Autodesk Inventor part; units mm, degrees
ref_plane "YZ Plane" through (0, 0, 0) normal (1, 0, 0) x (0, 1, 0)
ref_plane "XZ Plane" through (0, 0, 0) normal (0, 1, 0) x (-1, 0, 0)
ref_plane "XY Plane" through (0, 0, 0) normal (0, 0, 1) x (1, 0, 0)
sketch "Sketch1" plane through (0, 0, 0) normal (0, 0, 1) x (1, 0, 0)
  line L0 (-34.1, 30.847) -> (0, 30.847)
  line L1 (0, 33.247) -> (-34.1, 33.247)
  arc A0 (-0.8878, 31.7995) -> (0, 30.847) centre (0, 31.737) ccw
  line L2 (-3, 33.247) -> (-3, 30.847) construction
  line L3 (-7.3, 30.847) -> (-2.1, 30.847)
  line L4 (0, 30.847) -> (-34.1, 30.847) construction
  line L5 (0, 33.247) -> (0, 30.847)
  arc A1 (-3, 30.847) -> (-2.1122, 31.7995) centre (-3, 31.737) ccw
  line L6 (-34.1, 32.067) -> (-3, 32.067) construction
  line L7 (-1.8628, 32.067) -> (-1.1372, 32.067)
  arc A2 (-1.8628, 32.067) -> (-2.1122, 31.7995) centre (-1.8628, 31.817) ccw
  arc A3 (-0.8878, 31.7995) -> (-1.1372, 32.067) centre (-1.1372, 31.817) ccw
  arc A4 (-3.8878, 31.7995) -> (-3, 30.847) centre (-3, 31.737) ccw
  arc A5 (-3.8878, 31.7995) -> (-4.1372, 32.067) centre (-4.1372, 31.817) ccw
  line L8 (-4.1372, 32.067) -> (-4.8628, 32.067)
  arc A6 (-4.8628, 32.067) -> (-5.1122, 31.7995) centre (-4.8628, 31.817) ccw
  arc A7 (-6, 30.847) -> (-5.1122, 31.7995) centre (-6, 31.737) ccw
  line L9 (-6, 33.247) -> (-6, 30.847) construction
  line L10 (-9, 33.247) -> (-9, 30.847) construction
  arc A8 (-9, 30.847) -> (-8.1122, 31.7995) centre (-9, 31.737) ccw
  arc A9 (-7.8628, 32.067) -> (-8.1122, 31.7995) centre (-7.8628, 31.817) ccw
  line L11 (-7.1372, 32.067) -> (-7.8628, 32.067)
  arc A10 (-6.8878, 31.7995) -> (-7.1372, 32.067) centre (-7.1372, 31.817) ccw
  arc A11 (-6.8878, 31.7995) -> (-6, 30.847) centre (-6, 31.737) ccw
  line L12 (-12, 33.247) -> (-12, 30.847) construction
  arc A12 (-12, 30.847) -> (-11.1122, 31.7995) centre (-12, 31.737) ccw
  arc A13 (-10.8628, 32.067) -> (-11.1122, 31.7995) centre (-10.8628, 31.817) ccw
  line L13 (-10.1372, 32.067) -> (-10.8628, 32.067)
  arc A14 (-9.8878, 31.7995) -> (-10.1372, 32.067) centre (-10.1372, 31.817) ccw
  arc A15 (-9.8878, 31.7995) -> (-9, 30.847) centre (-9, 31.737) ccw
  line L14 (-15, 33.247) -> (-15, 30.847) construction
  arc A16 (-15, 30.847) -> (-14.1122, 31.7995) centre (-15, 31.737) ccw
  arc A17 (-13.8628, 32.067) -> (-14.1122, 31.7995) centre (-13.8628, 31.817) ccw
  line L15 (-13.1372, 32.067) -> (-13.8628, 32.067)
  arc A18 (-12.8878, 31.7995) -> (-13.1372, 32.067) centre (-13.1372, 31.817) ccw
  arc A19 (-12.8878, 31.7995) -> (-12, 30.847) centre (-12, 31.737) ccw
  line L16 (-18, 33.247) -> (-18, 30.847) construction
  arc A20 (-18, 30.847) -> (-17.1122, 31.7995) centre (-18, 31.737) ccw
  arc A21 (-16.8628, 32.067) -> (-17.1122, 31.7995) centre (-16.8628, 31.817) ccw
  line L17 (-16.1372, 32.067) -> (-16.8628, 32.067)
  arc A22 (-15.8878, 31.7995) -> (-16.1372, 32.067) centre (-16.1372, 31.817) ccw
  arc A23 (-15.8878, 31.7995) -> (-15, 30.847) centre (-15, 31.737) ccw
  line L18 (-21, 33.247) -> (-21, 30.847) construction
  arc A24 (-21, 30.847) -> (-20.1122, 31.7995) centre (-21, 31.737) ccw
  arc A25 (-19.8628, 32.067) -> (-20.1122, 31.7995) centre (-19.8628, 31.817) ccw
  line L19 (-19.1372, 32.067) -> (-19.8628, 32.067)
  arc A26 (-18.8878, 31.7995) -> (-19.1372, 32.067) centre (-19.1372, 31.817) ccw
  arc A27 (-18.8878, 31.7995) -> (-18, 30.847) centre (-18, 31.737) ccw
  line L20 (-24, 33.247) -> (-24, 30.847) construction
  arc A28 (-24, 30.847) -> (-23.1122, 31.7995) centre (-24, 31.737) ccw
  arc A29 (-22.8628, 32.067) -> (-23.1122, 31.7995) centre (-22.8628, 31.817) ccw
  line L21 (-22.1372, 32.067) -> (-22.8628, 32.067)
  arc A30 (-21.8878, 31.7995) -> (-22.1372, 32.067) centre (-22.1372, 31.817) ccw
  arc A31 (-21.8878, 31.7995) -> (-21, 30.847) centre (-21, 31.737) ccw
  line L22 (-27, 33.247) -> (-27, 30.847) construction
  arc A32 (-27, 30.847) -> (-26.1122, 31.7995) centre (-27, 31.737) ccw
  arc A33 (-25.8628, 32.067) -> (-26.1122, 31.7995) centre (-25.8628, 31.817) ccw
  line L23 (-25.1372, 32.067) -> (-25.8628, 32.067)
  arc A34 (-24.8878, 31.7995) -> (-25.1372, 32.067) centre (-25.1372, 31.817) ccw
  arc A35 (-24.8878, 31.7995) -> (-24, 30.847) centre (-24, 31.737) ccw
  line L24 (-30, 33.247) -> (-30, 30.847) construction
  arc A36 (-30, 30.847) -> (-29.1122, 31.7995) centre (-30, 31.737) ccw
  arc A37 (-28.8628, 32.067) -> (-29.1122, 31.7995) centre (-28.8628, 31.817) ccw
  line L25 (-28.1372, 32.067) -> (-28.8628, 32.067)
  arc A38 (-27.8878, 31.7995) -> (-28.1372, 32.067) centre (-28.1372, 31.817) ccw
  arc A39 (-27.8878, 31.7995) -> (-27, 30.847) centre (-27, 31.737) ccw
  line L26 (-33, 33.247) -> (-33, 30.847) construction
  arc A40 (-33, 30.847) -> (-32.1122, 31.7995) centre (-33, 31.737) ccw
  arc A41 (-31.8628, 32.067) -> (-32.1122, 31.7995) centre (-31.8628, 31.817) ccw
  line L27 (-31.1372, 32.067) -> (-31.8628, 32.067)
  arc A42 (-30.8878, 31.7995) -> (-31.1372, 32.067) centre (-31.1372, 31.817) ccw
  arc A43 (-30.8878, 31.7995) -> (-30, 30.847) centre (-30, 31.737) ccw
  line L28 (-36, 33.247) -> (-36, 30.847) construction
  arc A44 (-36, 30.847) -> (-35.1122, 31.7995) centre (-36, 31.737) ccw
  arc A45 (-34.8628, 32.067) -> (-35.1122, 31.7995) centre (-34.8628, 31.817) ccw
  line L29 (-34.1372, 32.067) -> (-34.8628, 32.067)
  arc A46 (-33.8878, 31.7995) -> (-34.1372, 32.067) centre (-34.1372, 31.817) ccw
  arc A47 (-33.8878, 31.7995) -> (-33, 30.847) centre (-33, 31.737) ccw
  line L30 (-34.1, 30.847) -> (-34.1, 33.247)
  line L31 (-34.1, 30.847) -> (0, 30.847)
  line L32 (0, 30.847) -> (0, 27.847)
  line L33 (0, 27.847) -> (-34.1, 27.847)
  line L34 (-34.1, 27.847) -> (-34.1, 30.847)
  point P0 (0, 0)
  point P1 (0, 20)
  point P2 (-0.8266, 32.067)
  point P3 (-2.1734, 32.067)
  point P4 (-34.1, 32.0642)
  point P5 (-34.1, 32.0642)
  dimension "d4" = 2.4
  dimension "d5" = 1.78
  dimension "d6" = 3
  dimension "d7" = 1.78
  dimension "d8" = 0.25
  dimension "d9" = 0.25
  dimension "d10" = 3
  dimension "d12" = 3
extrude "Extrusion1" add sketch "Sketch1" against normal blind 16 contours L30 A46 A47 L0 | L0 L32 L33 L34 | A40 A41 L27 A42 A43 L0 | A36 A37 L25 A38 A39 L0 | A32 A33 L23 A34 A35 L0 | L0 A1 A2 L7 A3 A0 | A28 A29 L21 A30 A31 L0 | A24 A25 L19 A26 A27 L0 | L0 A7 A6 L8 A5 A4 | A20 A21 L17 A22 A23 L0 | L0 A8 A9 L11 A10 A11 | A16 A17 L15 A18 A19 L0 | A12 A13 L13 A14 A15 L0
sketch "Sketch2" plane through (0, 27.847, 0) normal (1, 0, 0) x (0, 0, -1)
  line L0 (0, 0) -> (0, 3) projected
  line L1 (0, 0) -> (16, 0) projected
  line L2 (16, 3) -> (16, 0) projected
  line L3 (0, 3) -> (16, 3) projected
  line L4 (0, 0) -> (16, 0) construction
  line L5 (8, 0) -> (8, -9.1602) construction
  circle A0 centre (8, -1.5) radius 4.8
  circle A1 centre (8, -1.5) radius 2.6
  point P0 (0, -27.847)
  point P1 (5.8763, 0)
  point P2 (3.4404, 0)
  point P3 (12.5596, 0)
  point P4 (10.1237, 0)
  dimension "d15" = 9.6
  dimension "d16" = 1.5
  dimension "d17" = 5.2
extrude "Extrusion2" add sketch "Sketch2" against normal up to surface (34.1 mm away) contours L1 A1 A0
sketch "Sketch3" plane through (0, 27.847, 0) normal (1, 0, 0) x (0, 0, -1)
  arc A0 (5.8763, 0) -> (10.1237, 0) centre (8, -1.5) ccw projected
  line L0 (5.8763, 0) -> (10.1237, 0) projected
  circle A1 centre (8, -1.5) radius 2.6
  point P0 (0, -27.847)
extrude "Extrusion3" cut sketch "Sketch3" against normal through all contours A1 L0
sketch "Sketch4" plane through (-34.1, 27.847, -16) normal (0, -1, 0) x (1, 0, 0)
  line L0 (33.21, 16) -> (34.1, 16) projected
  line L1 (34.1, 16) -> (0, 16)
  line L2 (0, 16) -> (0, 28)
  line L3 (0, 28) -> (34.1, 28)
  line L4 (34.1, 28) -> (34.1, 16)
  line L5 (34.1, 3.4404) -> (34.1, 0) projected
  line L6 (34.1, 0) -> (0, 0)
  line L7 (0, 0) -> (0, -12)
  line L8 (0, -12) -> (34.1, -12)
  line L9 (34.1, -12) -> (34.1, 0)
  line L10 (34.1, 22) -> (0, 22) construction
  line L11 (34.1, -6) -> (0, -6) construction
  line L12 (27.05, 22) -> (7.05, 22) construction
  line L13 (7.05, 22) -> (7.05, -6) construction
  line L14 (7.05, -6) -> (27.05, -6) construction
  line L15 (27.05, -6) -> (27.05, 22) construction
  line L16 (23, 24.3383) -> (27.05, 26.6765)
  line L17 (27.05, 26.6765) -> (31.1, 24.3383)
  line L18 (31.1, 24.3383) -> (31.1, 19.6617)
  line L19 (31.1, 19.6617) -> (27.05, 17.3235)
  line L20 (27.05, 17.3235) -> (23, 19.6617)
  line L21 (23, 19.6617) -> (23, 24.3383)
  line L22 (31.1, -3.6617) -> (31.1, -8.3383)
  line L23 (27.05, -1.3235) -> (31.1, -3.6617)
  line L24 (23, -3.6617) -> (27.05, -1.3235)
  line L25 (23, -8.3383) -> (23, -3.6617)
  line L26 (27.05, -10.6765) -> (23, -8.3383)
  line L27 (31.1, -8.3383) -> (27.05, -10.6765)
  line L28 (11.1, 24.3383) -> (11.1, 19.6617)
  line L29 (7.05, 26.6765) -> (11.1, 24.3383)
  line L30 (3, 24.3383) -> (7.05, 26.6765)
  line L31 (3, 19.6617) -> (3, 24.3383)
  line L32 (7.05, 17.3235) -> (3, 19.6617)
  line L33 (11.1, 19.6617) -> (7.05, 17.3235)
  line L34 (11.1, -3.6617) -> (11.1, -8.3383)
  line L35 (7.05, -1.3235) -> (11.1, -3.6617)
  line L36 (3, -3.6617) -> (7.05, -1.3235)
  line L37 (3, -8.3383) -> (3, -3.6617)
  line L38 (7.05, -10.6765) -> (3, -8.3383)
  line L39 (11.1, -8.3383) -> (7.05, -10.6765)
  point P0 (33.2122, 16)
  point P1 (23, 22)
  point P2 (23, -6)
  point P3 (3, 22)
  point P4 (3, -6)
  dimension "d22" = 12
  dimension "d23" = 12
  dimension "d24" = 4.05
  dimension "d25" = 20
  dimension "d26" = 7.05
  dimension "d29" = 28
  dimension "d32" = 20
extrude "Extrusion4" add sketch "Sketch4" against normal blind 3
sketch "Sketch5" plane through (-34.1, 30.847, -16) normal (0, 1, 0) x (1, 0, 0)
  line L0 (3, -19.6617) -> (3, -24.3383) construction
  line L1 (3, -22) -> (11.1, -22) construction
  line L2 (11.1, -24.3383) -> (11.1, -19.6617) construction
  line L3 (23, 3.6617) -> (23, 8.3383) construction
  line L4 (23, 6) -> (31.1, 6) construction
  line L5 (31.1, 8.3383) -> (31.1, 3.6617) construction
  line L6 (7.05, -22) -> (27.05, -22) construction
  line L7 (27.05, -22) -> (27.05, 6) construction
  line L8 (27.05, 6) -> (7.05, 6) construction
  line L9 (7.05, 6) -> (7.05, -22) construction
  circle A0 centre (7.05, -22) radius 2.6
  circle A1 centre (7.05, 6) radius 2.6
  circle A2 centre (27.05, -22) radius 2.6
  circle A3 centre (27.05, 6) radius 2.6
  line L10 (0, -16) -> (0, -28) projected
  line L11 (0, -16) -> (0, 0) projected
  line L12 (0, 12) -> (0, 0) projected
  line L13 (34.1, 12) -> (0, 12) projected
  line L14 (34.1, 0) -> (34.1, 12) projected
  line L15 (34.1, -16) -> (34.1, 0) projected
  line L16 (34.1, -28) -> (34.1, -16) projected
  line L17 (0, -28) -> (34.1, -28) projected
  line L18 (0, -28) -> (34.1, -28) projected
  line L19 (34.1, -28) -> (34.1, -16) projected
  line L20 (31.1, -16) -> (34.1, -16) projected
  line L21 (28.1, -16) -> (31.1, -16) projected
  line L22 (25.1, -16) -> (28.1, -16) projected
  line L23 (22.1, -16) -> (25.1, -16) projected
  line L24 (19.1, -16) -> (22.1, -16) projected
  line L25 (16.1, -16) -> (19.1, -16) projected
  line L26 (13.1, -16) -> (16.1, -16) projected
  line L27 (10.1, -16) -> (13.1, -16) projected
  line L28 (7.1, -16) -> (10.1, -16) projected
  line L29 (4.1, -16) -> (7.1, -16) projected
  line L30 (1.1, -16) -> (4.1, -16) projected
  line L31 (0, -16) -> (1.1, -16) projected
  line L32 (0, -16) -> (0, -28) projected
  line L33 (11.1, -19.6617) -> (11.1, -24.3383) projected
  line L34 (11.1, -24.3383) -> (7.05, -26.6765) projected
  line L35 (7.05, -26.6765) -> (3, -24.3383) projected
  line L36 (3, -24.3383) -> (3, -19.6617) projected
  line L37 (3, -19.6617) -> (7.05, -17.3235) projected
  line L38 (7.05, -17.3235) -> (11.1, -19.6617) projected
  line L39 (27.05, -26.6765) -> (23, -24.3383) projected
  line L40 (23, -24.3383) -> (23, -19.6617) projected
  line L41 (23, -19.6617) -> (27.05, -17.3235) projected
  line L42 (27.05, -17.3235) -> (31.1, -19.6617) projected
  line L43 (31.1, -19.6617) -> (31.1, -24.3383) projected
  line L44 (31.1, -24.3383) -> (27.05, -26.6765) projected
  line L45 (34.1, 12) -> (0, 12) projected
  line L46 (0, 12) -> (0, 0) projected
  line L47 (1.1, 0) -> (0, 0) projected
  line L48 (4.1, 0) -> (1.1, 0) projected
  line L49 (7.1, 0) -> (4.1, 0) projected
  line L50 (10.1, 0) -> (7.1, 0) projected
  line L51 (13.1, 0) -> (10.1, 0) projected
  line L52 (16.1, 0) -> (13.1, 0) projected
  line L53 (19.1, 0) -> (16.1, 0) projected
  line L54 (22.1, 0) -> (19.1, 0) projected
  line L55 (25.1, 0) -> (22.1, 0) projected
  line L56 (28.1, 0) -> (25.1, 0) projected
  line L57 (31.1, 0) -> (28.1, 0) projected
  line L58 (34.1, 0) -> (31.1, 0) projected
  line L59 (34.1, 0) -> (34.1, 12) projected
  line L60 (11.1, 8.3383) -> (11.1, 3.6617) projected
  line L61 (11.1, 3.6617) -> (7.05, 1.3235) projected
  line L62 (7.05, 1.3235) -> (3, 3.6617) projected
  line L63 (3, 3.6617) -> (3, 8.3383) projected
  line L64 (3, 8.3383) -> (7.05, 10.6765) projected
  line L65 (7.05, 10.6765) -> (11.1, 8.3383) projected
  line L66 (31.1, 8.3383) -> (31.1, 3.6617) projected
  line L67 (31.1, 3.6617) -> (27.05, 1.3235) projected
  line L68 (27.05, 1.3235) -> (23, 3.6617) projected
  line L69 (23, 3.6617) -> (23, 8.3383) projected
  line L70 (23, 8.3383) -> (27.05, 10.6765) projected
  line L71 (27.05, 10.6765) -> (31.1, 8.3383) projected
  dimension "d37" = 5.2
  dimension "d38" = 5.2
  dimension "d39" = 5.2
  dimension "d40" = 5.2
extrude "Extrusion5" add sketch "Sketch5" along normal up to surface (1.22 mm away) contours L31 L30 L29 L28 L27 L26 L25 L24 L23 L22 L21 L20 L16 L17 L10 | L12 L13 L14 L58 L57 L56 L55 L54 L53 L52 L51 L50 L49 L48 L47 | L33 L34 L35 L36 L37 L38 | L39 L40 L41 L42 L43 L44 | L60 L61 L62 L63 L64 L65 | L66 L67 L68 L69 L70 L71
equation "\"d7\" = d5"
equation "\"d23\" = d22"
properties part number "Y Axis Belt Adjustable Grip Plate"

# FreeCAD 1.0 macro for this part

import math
import FreeCAD as App
import Part
import Sketcher

V = App.Vector
Q = App.Units.Quantity


def add_polygon(sketch, points):
    """Adds a closed chain of lines whose ends are joined by coincident constraints."""
    first, n = sketch.GeometryCount, len(points)
    for a, b in zip(points, points[1:] + points[:1]):
        sketch.addGeometry(Part.LineSegment(App.Vector(*a, 0), App.Vector(*b, 0)), False)
    for i in range(n):
        sketch.addConstraint(Sketcher.Constraint("Coincident", first + i, 2, first + (i + 1) % n, 1))

doc = App.newDocument("Part")
body = doc.addObject("PartDesign::Body", "Body")

# Sketch on XY plane
sketch1 = body.newObject("Sketcher::SketchObject", "Sketch")
sketch1.AttachmentSupport = (doc.getObject("XY_Plane"), [""])
sketch1.MapMode = "FlatFace"
sketch1.addGeometry([
    Part.LineSegment(V(-34.1, 32.06, 0), V(-34.1, 27.85, 0)),  # 0
    Part.LineSegment(V(-34.1, 27.85, 0), V(0, 27.85, 0)),  # 1
    Part.LineSegment(V(0, 27.85, 0), V(0, 30.85, 0)),  # 2
    Part.ArcOfCircle(Part.Circle(V(0, 31.74, 0), V(0, 0, 1), 0.89), math.radians(176), math.radians(270)),  # 3
    Part.ArcOfCircle(Part.Circle(V(-1.14, 31.82, 0), V(0, 0, 1), 0.25), math.radians(-4), math.radians(90)),  # 4
    Part.LineSegment(V(-1.14, 32.07, 0), V(-1.86, 32.07, 0)),  # 5
    Part.ArcOfCircle(Part.Circle(V(-1.86, 31.82, 0), V(0, 0, 1), 0.25), math.radians(90), math.radians(184)),  # 6
    Part.ArcOfCircle(Part.Circle(V(-3, 31.74, 0), V(0, 0, 1), 0.89), math.radians(-90), math.radians(4)),  # 7
    Part.ArcOfCircle(Part.Circle(V(-3, 31.74, 0), V(0, 0, 1), 0.89), math.radians(176), math.radians(270)),  # 8
    Part.ArcOfCircle(Part.Circle(V(-4.14, 31.82, 0), V(0, 0, 1), 0.25), math.radians(-4), math.radians(90)),  # 9
    Part.LineSegment(V(-4.14, 32.07, 0), V(-4.86, 32.07, 0)),  # 10
    Part.ArcOfCircle(Part.Circle(V(-4.86, 31.82, 0), V(0, 0, 1), 0.25), math.radians(90), math.radians(184)),  # 11
    Part.ArcOfCircle(Part.Circle(V(-6, 31.74, 0), V(0, 0, 1), 0.89), math.radians(-90), math.radians(4)),  # 12
    Part.ArcOfCircle(Part.Circle(V(-6, 31.74, 0), V(0, 0, 1), 0.89), math.radians(176), math.radians(270)),  # 13
    Part.ArcOfCircle(Part.Circle(V(-7.14, 31.82, 0), V(0, 0, 1), 0.25), math.radians(-4), math.radians(90)),  # 14
    Part.LineSegment(V(-7.14, 32.07, 0), V(-7.86, 32.07, 0)),  # 15
    Part.ArcOfCircle(Part.Circle(V(-7.86, 31.82, 0), V(0, 0, 1), 0.25), math.radians(90), math.radians(184)),  # 16
    Part.ArcOfCircle(Part.Circle(V(-9, 31.74, 0), V(0, 0, 1), 0.89), math.radians(-90), math.radians(4)),  # 17
    Part.ArcOfCircle(Part.Circle(V(-9, 31.74, 0), V(0, 0, 1), 0.89), math.radians(176), math.radians(270)),  # 18
    Part.ArcOfCircle(Part.Circle(V(-10.14, 31.82, 0), V(0, 0, 1), 0.25), math.radians(-4), math.radians(90)),  # 19
    Part.LineSegment(V(-10.14, 32.07, 0), V(-10.86, 32.07, 0)),  # 20
    Part.ArcOfCircle(Part.Circle(V(-10.86, 31.82, 0), V(0, 0, 1), 0.25), math.radians(90), math.radians(184)),  # 21
    Part.ArcOfCircle(Part.Circle(V(-12, 31.74, 0), V(0, 0, 1), 0.89), math.radians(-90), math.radians(4)),  # 22
    Part.ArcOfCircle(Part.Circle(V(-12, 31.74, 0), V(0, 0, 1), 0.89), math.radians(176), math.radians(270)),  # 23
    Part.ArcOfCircle(Part.Circle(V(-13.14, 31.82, 0), V(0, 0, 1), 0.25), math.radians(-4), math.radians(90)),  # 24
    Part.LineSegment(V(-13.14, 32.07, 0), V(-13.86, 32.07, 0)),  # 25
    Part.ArcOfCircle(Part.Circle(V(-13.86, 31.82, 0), V(0, 0, 1), 0.25), math.radians(90), math.radians(184)),  # 26
    Part.ArcOfCircle(Part.Circle(V(-15, 31.74, 0), V(0, 0, 1), 0.89), math.radians(-90), math.radians(4)),  # 27
    Part.ArcOfCircle(Part.Circle(V(-15, 31.74, 0), V(0, 0, 1), 0.89), math.radians(176), math.radians(270)),  # 28
    Part.ArcOfCircle(Part.Circle(V(-16.14, 31.82, 0), V(0, 0, 1), 0.25), math.radians(-4), math.radians(90)),  # 29
    Part.LineSegment(V(-16.14, 32.07, 0), V(-16.86, 32.07, 0)),  # 30
    Part.ArcOfCircle(Part.Circle(V(-16.86, 31.82, 0), V(0, 0, 1), 0.25), math.radians(90), math.radians(184)),  # 31
    Part.ArcOfCircle(Part.Circle(V(-18, 31.74, 0), V(0, 0, 1), 0.89), math.radians(-90), math.radians(4)),  # 32
    Part.ArcOfCircle(Part.Circle(V(-18, 31.74, 0), V(0, 0, 1), 0.89), math.radians(176), math.radians(270)),  # 33
    Part.ArcOfCircle(Part.Circle(V(-19.14, 31.82, 0), V(0, 0, 1), 0.25), math.radians(-4), math.radians(90)),  # 34
    Part.LineSegment(V(-19.14, 32.07, 0), V(-19.86, 32.07, 0)),  # 35
    Part.ArcOfCircle(Part.Circle(V(-19.86, 31.82, 0), V(0, 0, 1), 0.25), math.radians(90), math.radians(184)),  # 36
    Part.ArcOfCircle(Part.Circle(V(-21, 31.74, 0), V(0, 0, 1), 0.89), math.radians(-90), math.radians(4)),  # 37
    Part.ArcOfCircle(Part.Circle(V(-21, 31.74, 0), V(0, 0, 1), 0.89), math.radians(176), math.radians(270)),  # 38
    Part.ArcOfCircle(Part.Circle(V(-22.14, 31.82, 0), V(0, 0, 1), 0.25), math.radians(-4), math.radians(90)),  # 39
    Part.LineSegment(V(-22.14, 32.07, 0), V(-22.86, 32.07, 0)),  # 40
    Part.ArcOfCircle(Part.Circle(V(-22.86, 31.82, 0), V(0, 0, 1), 0.25), math.radians(90), math.radians(184)),  # 41
    Part.ArcOfCircle(Part.Circle(V(-24, 31.74, 0), V(0, 0, 1), 0.89), math.radians(-90), math.radians(4)),  # 42
    Part.ArcOfCircle(Part.Circle(V(-24, 31.74, 0), V(0, 0, 1), 0.89), math.radians(176), math.radians(270)),  # 43
    Part.ArcOfCircle(Part.Circle(V(-25.14, 31.82, 0), V(0, 0, 1), 0.25), math.radians(-4), math.radians(90)),  # 44
    Part.LineSegment(V(-25.14, 32.07, 0), V(-25.86, 32.07, 0)),  # 45
    Part.ArcOfCircle(Part.Circle(V(-25.86, 31.82, 0), V(0, 0, 1), 0.25), math.radians(90), math.radians(184)),  # 46
    Part.ArcOfCircle(Part.Circle(V(-27, 31.74, 0), V(0, 0, 1), 0.89), math.radians(-90), math.radians(4)),  # 47
    Part.ArcOfCircle(Part.Circle(V(-27, 31.74, 0), V(0, 0, 1), 0.89), math.radians(176), math.radians(270)),  # 48
    Part.ArcOfCircle(Part.Circle(V(-28.14, 31.82, 0), V(0, 0, 1), 0.25), math.radians(-4), math.radians(90)),  # 49
    Part.LineSegment(V(-28.14, 32.07, 0), V(-28.86, 32.07, 0)),  # 50
    Part.ArcOfCircle(Part.Circle(V(-28.86, 31.82, 0), V(0, 0, 1), 0.25), math.radians(90), math.radians(184)),  # 51
    Part.ArcOfCircle(Part.Circle(V(-30, 31.74, 0), V(0, 0, 1), 0.89), math.radians(-90), math.radians(4)),  # 52
    Part.ArcOfCircle(Part.Circle(V(-30, 31.74, 0), V(0, 0, 1), 0.89), math.radians(176), math.radians(270)),  # 53
    Part.ArcOfCircle(Part.Circle(V(-31.14, 31.82, 0), V(0, 0, 1), 0.25), math.radians(-4), math.radians(90)),  # 54
    Part.LineSegment(V(-31.14, 32.07, 0), V(-31.86, 32.07, 0)),  # 55
    Part.ArcOfCircle(Part.Circle(V(-31.86, 31.82, 0), V(0, 0, 1), 0.25), math.radians(90), math.radians(184)),  # 56
    Part.ArcOfCircle(Part.Circle(V(-33, 31.74, 0), V(0, 0, 1), 0.89), math.radians(-90), math.radians(4)),  # 57
    Part.ArcOfCircle(Part.Circle(V(-33, 31.74, 0), V(0, 0, 1), 0.89), math.radians(176), math.radians(270)),  # 58
    Part.ArcOfCircle(Part.Circle(V(-34.14, 31.82, 0), V(0, 0, 1), 0.25), math.radians(-4), math.radians(81)),  # 59
], False)
sketch1.addConstraint([
    Sketcher.Constraint("Coincident", 0, 2, 1, 1),
    Sketcher.Constraint("Coincident", 1, 2, 2, 1),
    Sketcher.Constraint("Coincident", 2, 2, 3, 2),
    Sketcher.Constraint("Tangent", 3, 1, 4, 1),
    Sketcher.Constraint("Tangent", 4, 2, 5, 1),
    Sketcher.Constraint("Tangent", 5, 2, 6, 1),
    Sketcher.Constraint("Tangent", 6, 2, 7, 2),
    Sketcher.Constraint("Tangent", 7, 1, 8, 2),
    Sketcher.Constraint("Tangent", 8, 1, 9, 1),
    Sketcher.Constraint("Tangent", 9, 2, 10, 1),
    Sketcher.Constraint("Tangent", 10, 2, 11, 1),
    Sketcher.Constraint("Tangent", 11, 2, 12, 2),
    Sketcher.Constraint("Tangent", 12, 1, 13, 2),
    Sketcher.Constraint("Tangent", 13, 1, 14, 1),
    Sketcher.Constraint("Tangent", 14, 2, 15, 1),
    Sketcher.Constraint("Tangent", 15, 2, 16, 1),
    Sketcher.Constraint("Tangent", 16, 2, 17, 2),
    Sketcher.Constraint("Tangent", 17, 1, 18, 2),
    Sketcher.Constraint("Tangent", 18, 1, 19, 1),
    Sketcher.Constraint("Tangent", 19, 2, 20, 1),
    Sketcher.Constraint("Tangent", 20, 2, 21, 1),
    Sketcher.Constraint("Tangent", 21, 2, 22, 2),
    Sketcher.Constraint("Tangent", 22, 1, 23, 2),
    Sketcher.Constraint("Tangent", 23, 1, 24, 1),
    Sketcher.Constraint("Tangent", 24, 2, 25, 1),
    Sketcher.Constraint("Tangent", 25, 2, 26, 1),
    Sketcher.Constraint("Tangent", 26, 2, 27, 2),
    Sketcher.Constraint("Tangent", 27, 1, 28, 2),
    Sketcher.Constraint("Tangent", 28, 1, 29, 1),
    Sketcher.Constraint("Tangent", 29, 2, 30, 1),
    Sketcher.Constraint("Tangent", 30, 2, 31, 1),
    Sketcher.Constraint("Tangent", 31, 2, 32, 2),
    Sketcher.Constraint("Tangent", 32, 1, 33, 2),
    Sketcher.Constraint("Tangent", 33, 1, 34, 1),
    Sketcher.Constraint("Tangent", 34, 2, 35, 1),
    Sketcher.Constraint("Tangent", 35, 2, 36, 1),
    Sketcher.Constraint("Tangent", 36, 2, 37, 2),
    Sketcher.Constraint("Tangent", 37, 1, 38, 2),
    Sketcher.Constraint("Tangent", 38, 1, 39, 1),
    Sketcher.Constraint("Tangent", 39, 2, 40, 1),
    Sketcher.Constraint("Tangent", 40, 2, 41, 1),
    Sketcher.Constraint("Tangent", 41, 2, 42, 2),
    Sketcher.Constraint("Tangent", 42, 1, 43, 2),
    Sketcher.Constraint("Tangent", 43, 1, 44, 1),
    Sketcher.Constraint("Tangent", 44, 2, 45, 1),
    Sketcher.Constraint("Tangent", 45, 2, 46, 1),
    Sketcher.Constraint("Tangent", 46, 2, 47, 2),
    Sketcher.Constraint("Tangent", 47, 1, 48, 2),
    Sketcher.Constraint("Tangent", 48, 1, 49, 1),
    Sketcher.Constraint("Tangent", 49, 2, 50, 1),
    Sketcher.Constraint("Tangent", 50, 2, 51, 1),
    Sketcher.Constraint("Tangent", 51, 2, 52, 2),
    Sketcher.Constraint("Tangent", 52, 1, 53, 2),
    Sketcher.Constraint("Tangent", 53, 1, 54, 1),
    Sketcher.Constraint("Tangent", 54, 2, 55, 1),
    Sketcher.Constraint("Tangent", 55, 2, 56, 1),
    Sketcher.Constraint("Tangent", 56, 2, 57, 2),
    Sketcher.Constraint("Tangent", 57, 1, 58, 2),
    Sketcher.Constraint("Tangent", 58, 1, 59, 1),
    Sketcher.Constraint("Coincident", 59, 2, 0, 1),
    Sketcher.Constraint("Vertical", 0),
    Sketcher.Constraint("Horizontal", 1),
    Sketcher.Constraint("Vertical", 2),
    Sketcher.Constraint("Horizontal", 5),
    Sketcher.Constraint("Horizontal", 10),
    Sketcher.Constraint("Horizontal", 15),
    Sketcher.Constraint("Horizontal", 20),
    Sketcher.Constraint("Horizontal", 25),
    Sketcher.Constraint("Horizontal", 30),
    Sketcher.Constraint("Horizontal", 35),
    Sketcher.Constraint("Horizontal", 40),
    Sketcher.Constraint("Horizontal", 45),
    Sketcher.Constraint("Horizontal", 50),
    Sketcher.Constraint("Horizontal", 55),
    Sketcher.Constraint("Equal", 4, 6),
    Sketcher.Constraint("Equal", 3, 7),
    Sketcher.Constraint("Equal", 7, 8),
    Sketcher.Constraint("Equal", 6, 9),
    Sketcher.Constraint("Equal", 9, 11),
    Sketcher.Constraint("Equal", 8, 12),
    Sketcher.Constraint("Equal", 12, 13),
    Sketcher.Constraint("Equal", 11, 14),
    Sketcher.Constraint("Equal", 14, 16),
    Sketcher.Constraint("Equal", 13, 17),
    Sketcher.Constraint("Equal", 17, 18),
    Sketcher.Constraint("Equal", 16, 19),
    Sketcher.Constraint("Equal", 19, 21),
    Sketcher.Constraint("Equal", 18, 22),
    Sketcher.Constraint("Equal", 22, 23),
    Sketcher.Constraint("Equal", 21, 24),
    Sketcher.Constraint("Equal", 24, 26),
    Sketcher.Constraint("Equal", 23, 27),
    Sketcher.Constraint("Equal", 27, 28),
    Sketcher.Constraint("Equal", 26, 29),
    Sketcher.Constraint("Equal", 29, 31),
    Sketcher.Constraint("Equal", 28, 32),
    Sketcher.Constraint("Equal", 32, 33),
    Sketcher.Constraint("Equal", 31, 34),
    Sketcher.Constraint("Equal", 34, 36),
    Sketcher.Constraint("Equal", 33, 37),
    Sketcher.Constraint("Equal", 37, 38),
    Sketcher.Constraint("Equal", 36, 39),
    Sketcher.Constraint("Equal", 39, 41),
    Sketcher.Constraint("Equal", 38, 42),
    Sketcher.Constraint("Equal", 42, 43),
    Sketcher.Constraint("Equal", 41, 44),
    Sketcher.Constraint("Equal", 44, 46),
    Sketcher.Constraint("Equal", 43, 47),
    Sketcher.Constraint("Equal", 47, 48),
    Sketcher.Constraint("Equal", 46, 49),
    Sketcher.Constraint("Equal", 49, 51),
    Sketcher.Constraint("Equal", 48, 52),
    Sketcher.Constraint("Equal", 52, 53),
    Sketcher.Constraint("Equal", 51, 54),
    Sketcher.Constraint("Equal", 54, 56),
    Sketcher.Constraint("Equal", 53, 57),
    Sketcher.Constraint("Equal", 57, 58),
    Sketcher.Constraint("Equal", 56, 59),
    Sketcher.Constraint("PointOnObject", 3, 3, -2),
    Sketcher.Constraint("PointOnObject", 1, 2, -2),
    Sketcher.Constraint("Horizontal", 3, 3, 7, 3),
    Sketcher.Constraint("Horizontal", 6, 3, 9, 3),
    Sketcher.Constraint("Horizontal", 8, 3, 12, 3),
    Sketcher.Constraint("Horizontal", 11, 3, 14, 3),
    Sketcher.Constraint("Horizontal", 13, 3, 17, 3),
    Sketcher.Constraint("Horizontal", 16, 3, 19, 3),
    Sketcher.Constraint("Horizontal", 18, 3, 22, 3),
    Sketcher.Constraint("Horizontal", 21, 3, 24, 3),
    Sketcher.Constraint("Horizontal", 23, 3, 27, 3),
    Sketcher.Constraint("Horizontal", 26, 3, 29, 3),
    Sketcher.Constraint("Horizontal", 28, 3, 32, 3),
    Sketcher.Constraint("Horizontal", 31, 3, 34, 3),
    Sketcher.Constraint("Horizontal", 33, 3, 37, 3),
    Sketcher.Constraint("Horizontal", 36, 3, 39, 3),
    Sketcher.Constraint("Horizontal", 38, 3, 42, 3),
    Sketcher.Constraint("Horizontal", 41, 3, 44, 3),
    Sketcher.Constraint("Horizontal", 43, 3, 47, 3),
    Sketcher.Constraint("Horizontal", 46, 3, 49, 3),
    Sketcher.Constraint("Horizontal", 48, 3, 52, 3),
    Sketcher.Constraint("Horizontal", 51, 3, 54, 3),
    Sketcher.Constraint("Horizontal", 53, 3, 57, 3),
    Sketcher.Constraint("Horizontal", 56, 3, 59, 3),
    Sketcher.Constraint("Vertical", 8, 3, 7, 1),
    Sketcher.Constraint("Vertical", 13, 3, 12, 1),
    Sketcher.Constraint("Vertical", 18, 3, 17, 1),
    Sketcher.Constraint("Vertical", 23, 3, 22, 1),
    Sketcher.Constraint("Vertical", 28, 3, 27, 1),
    Sketcher.Constraint("Vertical", 33, 3, 32, 1),
    Sketcher.Constraint("Vertical", 38, 3, 37, 1),
    Sketcher.Constraint("Vertical", 43, 3, 42, 1),
    Sketcher.Constraint("Vertical", 48, 3, 47, 1),
    Sketcher.Constraint("Vertical", 53, 3, 52, 1),
    Sketcher.Constraint("Vertical", 58, 3, 57, 1),
    Sketcher.Constraint("Equal", 5, 10),
    Sketcher.Constraint("Equal", 10, 15),
    Sketcher.Constraint("Equal", 15, 20),
    Sketcher.Constraint("Equal", 20, 25),
    Sketcher.Constraint("Equal", 25, 30),
    Sketcher.Constraint("Equal", 30, 35),
    Sketcher.Constraint("Equal", 35, 40),
    Sketcher.Constraint("Equal", 40, 45),
    Sketcher.Constraint("Equal", 45, 50),
    Sketcher.Constraint("Equal", 50, 55),
    Sketcher.Constraint("DistanceY", 2, 1, 2, 2, Q("3 mm")),
    Sketcher.Constraint("Radius", 3, Q("0.89 mm")),
    Sketcher.Constraint("Radius", 4, Q("0.25 mm")),
    Sketcher.Constraint("DistanceX", 7, 3, -1, 1, Q("3 mm")),
    Sketcher.Constraint("DistanceX", 1, 1, 1, 2, Q("34.1 mm")),
    Sketcher.Constraint("DistanceX", 5, 2, 5, 1, Q("0.7256 mm")),
    Sketcher.Constraint("DistanceY", -1, 1, 3, 3, Q("31.737 mm")),
])
pad1 = body.newObject("PartDesign::Pad", "Pad")
pad1.Profile = sketch1
pad1.Length = 16
pad1.Reversed = True

# Sketch on YZ plane
sketch2 = body.newObject("Sketcher::SketchObject", "Sketch001")
sketch2.AttachmentSupport = (doc.getObject("YZ_Plane"), [""])
sketch2.MapMode = "FlatFace"
sketch2.addGeometry([
    Part.LineSegment(V(27.8, -5.9, 0), V(27.8, -3.4, 0)),
    Part.ArcOfCircle(Part.Circle(V(26.3, -8, 0), V(0, 0, 1), 4.8), math.radians(72), math.radians(288)),
    Part.LineSegment(V(27.8, -12.6, 0), V(27.8, -10.1, 0)),
    Part.ArcOfCircle(Part.Circle(V(26.3, -8, 0), V(0, 0, 1), 2.6), math.radians(55), math.radians(305)),
], False)
sketch2.addConstraint([
    Sketcher.Constraint("Coincident", 0, 2, 1, 1),
    Sketcher.Constraint("Coincident", 1, 2, 2, 1),
    Sketcher.Constraint("Coincident", 2, 2, 3, 2),
    Sketcher.Constraint("Coincident", 3, 1, 0, 1),
    Sketcher.Constraint("Vertical", 0),
    Sketcher.Constraint("Vertical", 2),
    Sketcher.Constraint("Coincident", 3, 3, 1, 3),
    Sketcher.Constraint("Vertical", 0, 2, 1, 2),
    Sketcher.Constraint("Radius", 1, Q("4.8 mm")),
    Sketcher.Constraint("Radius", 3, Q("2.6 mm")),
    Sketcher.Constraint("DistanceX", 1, 3, 0, 2, Q("1.5 mm")),
    Sketcher.Constraint("DistanceY", 1, 3, -1, 1, Q("8 mm")),
    Sketcher.Constraint("DistanceX", -1, 1, 1, 3, Q("26.347 mm")),
])
pad2 = body.newObject("PartDesign::Pad", "Pad001")
pad2.Profile = sketch2
pad2.Length = 34.1
pad2.Reversed = True

# Sketch on YZ plane
sketch3 = body.newObject("Sketcher::SketchObject", "Sketch002")
sketch3.AttachmentSupport = (doc.getObject("YZ_Plane"), [""])
sketch3.MapMode = "FlatFace"
sketch3.addGeometry([
    Part.ArcOfCircle(Part.Circle(V(26.3, -8, 0), V(0, 0, 1), 2.6), math.radians(-55), math.radians(55)),
    Part.LineSegment(V(27.8, -10.1, 0), V(27.8, -5.9, 0)),
], False)
sketch3.addConstraint([
    Sketcher.Constraint("Coincident", 0, 1, 1, 1),
    Sketcher.Constraint("Coincident", 1, 2, 0, 2),
    Sketcher.Constraint("Vertical", 1),
    Sketcher.Constraint("Radius", 0, Q("2.6 mm")),
    Sketcher.Constraint("DistanceY", 0, 3, -1, 1, Q("8 mm")),
    Sketcher.Constraint("DistanceX", 0, 3, 0, 1, Q("1.5 mm")),
    Sketcher.Constraint("DistanceX", -1, 1, 0, 3, Q("26.347 mm")),
])
pocket1 = body.newObject("PartDesign::Pocket", "Pocket")
pocket1.Profile = sketch3
pocket1.Type = "ThroughAll"

# Sketch on XZ plane
sketch4 = body.newObject("Sketcher::SketchObject", "Sketch003")
sketch4.AttachmentSupport = (doc.getObject("XZ_Plane"), [""])
sketch4.MapMode = "FlatFace"
sketch4.AttachmentOffset = App.Placement(V(0, 0, -27.847), App.Rotation())
add_polygon(sketch4, [(-34.1, 0), (0, 0), (0, 12), (-34.1, 12)])  # lines 0-3
add_polygon(sketch4, [(-27.1, 10.7), (-23, 8.3), (-23, 3.7), (-27.1, 1.3), (-31.1, 3.7), (-31.1, 8.3)])  # lines 4-9
add_polygon(sketch4, [(-11.1, 3.7), (-11.1, 8.3), (-7, 10.7), (-3, 8.3), (-3, 3.7), (-7, 1.3)])  # lines 10-15
add_polygon(sketch4, [(0, -28), (0, -16), (-34.1, -16), (-34.1, -28)])  # lines 16-19
add_polygon(sketch4, [(-27.1, -17.3), (-23, -19.7), (-23, -24.3), (-27.1, -26.7), (-31.1, -24.3), (-31.1, -19.7)])  # lines 20-25
add_polygon(sketch4, [(-7, -17.3), (-3, -19.7), (-3, -24.3), (-7, -26.7), (-11.1, -24.3), (-11.1, -19.7)])  # lines 26-31
sketch4.addConstraint([
    Sketcher.Constraint("Horizontal", 0),
    Sketcher.Constraint("Vertical", 1),
    Sketcher.Constraint("Horizontal", 2),
    Sketcher.Constraint("Vertical", 3),
    Sketcher.Constraint("Vertical", 5),
    Sketcher.Constraint("Vertical", 8),
    Sketcher.Constraint("Vertical", 10),
    Sketcher.Constraint("Vertical", 13),
    Sketcher.Constraint("Vertical", 16),
    Sketcher.Constraint("Horizontal", 17),
    Sketcher.Constraint("Vertical", 18),
    Sketcher.Constraint("Horizontal", 19),
    Sketcher.Constraint("Vertical", 21),
    Sketcher.Constraint("Vertical", 24),
    Sketcher.Constraint("Vertical", 27),
    Sketcher.Constraint("Vertical", 30),
    Sketcher.Constraint("Coincident", 0, 2, -1, 1),
    Sketcher.Constraint("PointOnObject", 16, 2, -2),
    Sketcher.Constraint("Parallel", 4, 7),
    Sketcher.Constraint("Parallel", 6, 9),
    Sketcher.Constraint("Parallel", 9, 11),
    Sketcher.Constraint("Parallel", 7, 12),
    Sketcher.Constraint("Parallel", 11, 14),
    Sketcher.Constraint("Parallel", 12, 15),
    Sketcher.Constraint("Parallel", 15, 20),
    Sketcher.Constraint("Parallel", 14, 22),
    Sketcher.Constraint("Parallel", 20, 23),
    Sketcher.Constraint("Parallel", 22, 25),
    Sketcher.Constraint("Parallel", 23, 26),
    Sketcher.Constraint("Parallel", 25, 28),
    Sketcher.Constraint("Parallel", 26, 29),
    Sketcher.Constraint("Parallel", 28, 31),
    Sketcher.Constraint("Horizontal", 5, 2, 7, 2),
    Sketcher.Constraint("Horizontal", 4, 2, 8, 2),
    Sketcher.Constraint("Horizontal", 8, 2, 10, 2),
    Sketcher.Constraint("Horizontal", 9, 2, 11, 2),
    Sketcher.Constraint("Horizontal", 10, 2, 12, 2),
    Sketcher.Constraint("Horizontal", 7, 2, 13, 2),
    Sketcher.Constraint("Horizontal", 6, 2, 14, 2),
    Sketcher.Constraint("Horizontal", 21, 2, 23, 2),
    Sketcher.Constraint("Horizontal", 20, 2, 24, 2),
    Sketcher.Constraint("Horizontal", 24, 2, 26, 2),
    Sketcher.Constraint("Horizontal", 23, 2, 27, 2),
    Sketcher.Constraint("Horizontal", 22, 2, 28, 2),
    Sketcher.Constraint("Horizontal", 27, 2, 29, 2),
    Sketcher.Constraint("Horizontal", 26, 2, 30, 2),
    Sketcher.Constraint("Vertical", 6, 2, 9, 2),
    Sketcher.Constraint("Vertical", 3, 2, 17, 2),
    Sketcher.Constraint("Vertical", 5, 2, 20, 2),
    Sketcher.Constraint("Vertical", 9, 2, 22, 2),
    Sketcher.Constraint("Vertical", 13, 2, 26, 2),
    Sketcher.Constraint("Equal", 3, 16),
    Sketcher.Constraint("Equal", 13, 21),
    Sketcher.Constraint("DistanceY", 1, 1, 1, 2, Q("12 mm")),
    Sketcher.Constraint("DistanceY", 18, 2, -1, 1, Q("28 mm")),
    Sketcher.Constraint("DistanceX", 4, 2, 12, 2, Q("20 mm")),
    Sketcher.Constraint("DistanceX", 11, 2, -1, 1, Q("7.05 mm")),
    Sketcher.Constraint("Angle", 4, Q("-29.9993 deg")),
    Sketcher.Constraint("DistanceX", 6, 2, 5, 2, Q("4.05 mm")),
    Sketcher.Constraint("DistanceX", 3, 2, 6, 2, Q("7.05 mm")),
    Sketcher.Constraint("DistanceY", 5, 2, 5, 1, Q("4.6766 mm")),
    Sketcher.Constraint("DistanceY", -1, 1, 4, 2, Q("8.3383 mm")),
    Sketcher.Constraint("DistanceY", 20, 2, -1, 1, Q("19.6617 mm")),
])
pad3 = body.newObject("PartDesign::Pad", "Pad002")
pad3.Profile = sketch4
pad3.Length = 3
pad3.Reversed = True

# Sketch on XZ plane
sketch5 = body.newObject("Sketcher::SketchObject", "Sketch004")
sketch5.AttachmentSupport = (doc.getObject("XZ_Plane"), [""])
sketch5.MapMode = "FlatFace"
sketch5.AttachmentOffset = App.Placement(V(0, 0, -30.847), App.Rotation())
add_polygon(sketch5, [(-34.1, 0), (-34.1, 12), (0, 12), (0, 0)])  # lines 0-3
sketch5.addGeometry(Part.Circle(V(-27.1, 6, 0), V(0, 0, 1), 2.6), False)  # 4
sketch5.addGeometry(Part.Circle(V(-7, 6, 0), V(0, 0, 1), 2.6), False)  # 5
add_polygon(sketch5, [(-34.1, -28), (-34.1, -16), (0, -16), (0, -28)])  # lines 6-9
sketch5.addGeometry(Part.Circle(V(-27.1, -22, 0), V(0, 0, 1), 2.6), False)  # 10
sketch5.addGeometry(Part.Circle(V(-7, -22, 0), V(0, 0, 1), 2.6), False)  # 11
sketch5.addConstraint([
    Sketcher.Constraint("Vertical", 0),
    Sketcher.Constraint("Horizontal", 1),
    Sketcher.Constraint("Vertical", 2),
    Sketcher.Constraint("Horizontal", 3),
    Sketcher.Constraint("Vertical", 6),
    Sketcher.Constraint("Horizontal", 7),
    Sketcher.Constraint("Vertical", 8),
    Sketcher.Constraint("Horizontal", 9),
    Sketcher.Constraint("Coincident", 2, 2, -1, 1),
    Sketcher.Constraint("Equal", 4, 5),
    Sketcher.Constraint("Equal", 5, 10),
    Sketcher.Constraint("Equal", 10, 11),
    Sketcher.Constraint("PointOnObject", 7, 2, -2),
    Sketcher.Constraint("Horizontal", 4, 3, 5, 3),
    Sketcher.Constraint("Horizontal", 10, 3, 11, 3),
    Sketcher.Constraint("Vertical", 4, 3, 10, 3),
    Sketcher.Constraint("Vertical", 5, 3, 11, 3),
    Sketcher.Constraint("Vertical", 3, 2, 6, 2),
    Sketcher.Constraint("Equal", 2, 6),
    Sketcher.Constraint("Diameter", 4, Q("5.2 mm")),
    Sketcher.Constraint("DistanceY", 0, 1, 0, 2, Q("12 mm")),
    Sketcher.Constraint("DistanceX", 1, 1, 1, 2, Q("34.1 mm")),
    Sketcher.Constraint("DistanceY", -1, 1, 4, 3, Q("6 mm")),
    Sketcher.Constraint("DistanceY", 10, 3, -1, 1, Q("22 mm")),
    Sketcher.Constraint("DistanceY", 6, 2, -1, 1, Q("16 mm")),
    Sketcher.Constraint("DistanceX", 4, 3, 5, 3, Q("20 mm")),
    Sketcher.Constraint("DistanceX", 4, 3, -1, 1, Q("27.05 mm")),
])
pad4 = body.newObject("PartDesign::Pad", "Pad003")
pad4.Profile = sketch5
pad4.Length = 1.22
pad4.Reversed = True

doc.recompute()
